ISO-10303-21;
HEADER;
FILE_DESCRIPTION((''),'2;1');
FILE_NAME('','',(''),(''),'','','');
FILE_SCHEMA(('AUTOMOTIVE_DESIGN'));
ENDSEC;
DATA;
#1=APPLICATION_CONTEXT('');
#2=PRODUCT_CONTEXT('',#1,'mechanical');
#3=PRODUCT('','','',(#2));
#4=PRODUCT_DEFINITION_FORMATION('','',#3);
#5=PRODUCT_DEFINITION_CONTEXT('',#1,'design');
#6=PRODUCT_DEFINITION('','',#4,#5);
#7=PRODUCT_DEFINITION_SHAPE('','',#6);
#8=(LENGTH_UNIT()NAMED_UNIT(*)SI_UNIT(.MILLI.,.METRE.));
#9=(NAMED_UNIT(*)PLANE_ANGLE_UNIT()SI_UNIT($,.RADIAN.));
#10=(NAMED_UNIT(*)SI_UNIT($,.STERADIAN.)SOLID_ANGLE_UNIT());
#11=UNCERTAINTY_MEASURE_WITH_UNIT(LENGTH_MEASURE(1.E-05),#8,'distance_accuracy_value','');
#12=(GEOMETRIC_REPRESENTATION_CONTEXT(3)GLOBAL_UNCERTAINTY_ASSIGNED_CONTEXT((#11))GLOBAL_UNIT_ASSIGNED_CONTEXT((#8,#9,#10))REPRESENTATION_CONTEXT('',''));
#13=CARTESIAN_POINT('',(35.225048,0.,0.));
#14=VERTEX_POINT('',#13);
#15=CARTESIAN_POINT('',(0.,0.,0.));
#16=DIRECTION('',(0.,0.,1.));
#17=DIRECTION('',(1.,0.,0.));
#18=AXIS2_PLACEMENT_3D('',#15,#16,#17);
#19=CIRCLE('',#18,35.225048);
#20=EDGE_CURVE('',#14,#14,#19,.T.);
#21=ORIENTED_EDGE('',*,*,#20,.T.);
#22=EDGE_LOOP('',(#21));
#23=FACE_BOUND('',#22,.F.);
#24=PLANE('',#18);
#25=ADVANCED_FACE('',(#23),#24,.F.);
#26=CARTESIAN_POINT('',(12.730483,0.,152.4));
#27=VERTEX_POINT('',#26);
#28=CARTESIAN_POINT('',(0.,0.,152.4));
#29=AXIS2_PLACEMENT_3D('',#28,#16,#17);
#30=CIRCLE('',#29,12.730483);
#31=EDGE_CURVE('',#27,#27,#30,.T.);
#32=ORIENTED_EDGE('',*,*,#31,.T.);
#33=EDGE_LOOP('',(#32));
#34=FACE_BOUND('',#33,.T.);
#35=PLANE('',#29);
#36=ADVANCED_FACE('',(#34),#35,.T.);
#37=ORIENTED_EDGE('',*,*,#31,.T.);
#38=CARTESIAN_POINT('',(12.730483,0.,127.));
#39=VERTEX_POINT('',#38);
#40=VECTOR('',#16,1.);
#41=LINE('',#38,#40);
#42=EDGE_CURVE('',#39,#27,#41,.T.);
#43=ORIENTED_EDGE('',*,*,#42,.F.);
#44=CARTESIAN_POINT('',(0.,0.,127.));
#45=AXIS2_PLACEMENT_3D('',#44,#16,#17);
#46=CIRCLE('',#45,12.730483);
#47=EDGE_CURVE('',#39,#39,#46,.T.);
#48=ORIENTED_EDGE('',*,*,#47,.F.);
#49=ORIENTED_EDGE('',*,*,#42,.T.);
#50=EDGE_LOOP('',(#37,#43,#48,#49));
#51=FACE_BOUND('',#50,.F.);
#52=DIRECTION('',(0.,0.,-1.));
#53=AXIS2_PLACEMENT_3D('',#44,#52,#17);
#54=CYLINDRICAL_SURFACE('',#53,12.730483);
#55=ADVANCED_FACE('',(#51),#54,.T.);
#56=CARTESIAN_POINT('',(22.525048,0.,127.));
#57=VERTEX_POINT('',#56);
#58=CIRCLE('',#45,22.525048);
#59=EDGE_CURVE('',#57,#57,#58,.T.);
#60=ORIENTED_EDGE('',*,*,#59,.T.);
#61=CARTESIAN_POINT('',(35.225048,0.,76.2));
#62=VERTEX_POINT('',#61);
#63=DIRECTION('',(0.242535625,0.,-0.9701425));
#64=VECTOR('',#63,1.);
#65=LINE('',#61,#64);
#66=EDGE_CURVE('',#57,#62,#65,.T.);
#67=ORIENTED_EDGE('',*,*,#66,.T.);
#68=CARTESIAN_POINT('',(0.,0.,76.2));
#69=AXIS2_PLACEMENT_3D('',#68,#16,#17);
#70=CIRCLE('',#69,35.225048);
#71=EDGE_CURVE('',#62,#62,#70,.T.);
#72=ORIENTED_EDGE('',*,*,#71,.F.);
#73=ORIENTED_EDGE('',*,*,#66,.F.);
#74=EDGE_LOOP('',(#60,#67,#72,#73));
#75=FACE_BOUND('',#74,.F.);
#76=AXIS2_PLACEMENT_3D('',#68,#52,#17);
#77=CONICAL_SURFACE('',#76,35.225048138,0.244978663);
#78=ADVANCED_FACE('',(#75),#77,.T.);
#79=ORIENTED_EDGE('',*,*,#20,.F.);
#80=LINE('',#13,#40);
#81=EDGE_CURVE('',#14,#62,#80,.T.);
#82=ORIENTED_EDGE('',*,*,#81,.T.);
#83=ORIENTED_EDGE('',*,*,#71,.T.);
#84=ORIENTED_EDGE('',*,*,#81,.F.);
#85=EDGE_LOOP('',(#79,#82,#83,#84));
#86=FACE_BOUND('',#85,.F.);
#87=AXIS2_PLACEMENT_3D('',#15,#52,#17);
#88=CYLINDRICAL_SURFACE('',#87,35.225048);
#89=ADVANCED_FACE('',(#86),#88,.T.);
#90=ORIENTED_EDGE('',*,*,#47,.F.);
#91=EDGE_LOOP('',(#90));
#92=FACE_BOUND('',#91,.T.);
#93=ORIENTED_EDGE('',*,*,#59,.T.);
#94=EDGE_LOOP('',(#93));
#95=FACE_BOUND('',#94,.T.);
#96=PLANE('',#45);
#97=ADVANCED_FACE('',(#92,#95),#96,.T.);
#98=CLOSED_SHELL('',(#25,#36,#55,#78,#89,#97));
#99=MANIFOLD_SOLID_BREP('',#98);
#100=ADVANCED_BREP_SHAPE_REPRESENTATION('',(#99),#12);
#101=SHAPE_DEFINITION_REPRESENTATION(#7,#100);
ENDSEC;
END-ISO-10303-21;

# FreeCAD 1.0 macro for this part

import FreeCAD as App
import Part
import Sketcher
Q = App.Units.Quantity


def edges_at(feature, points):
    """Names of the edges that pass closest to the given points."""
    edges = feature.Shape.Edges
    near = lambda p: min(range(len(edges)), key=lambda i: edges[i].distToShape(Part.Vertex(*p))[0])
    return sorted({f"Edge{near(p) + 1}" for p in points})

doc = App.newDocument("Part")
body = doc.addObject("PartDesign::Body", "Body")

# Sketch on XY plane
sketch1 = body.newObject("Sketcher::SketchObject", "Sketch")
sketch1.AttachmentSupport = (doc.getObject("XY_Plane"), [""])
sketch1.MapMode = "FlatFace"
sketch1.addGeometry(Part.Circle(App.Vector(0, 0, 0), App.Vector(0, 0, 1), 35.225048), False)
sketch1.addConstraint([
    Sketcher.Constraint("Coincident", 0, 3, -1, 1),
    Sketcher.Constraint("Diameter", 0, 70.450096),
])
pad1 = body.newObject("PartDesign::Pad", "Pad")
pad1.Profile = sketch1
pad1.Length = Q("5 in")
doc.recompute()

chamfer = body.newObject("PartDesign::Chamfer", "Chamfer")
chamfer.Base = (pad1, edges_at(pad1, [(-35.225, 0, 127)]))
chamfer.ChamferType = "Two distances"
chamfer.Size = Q("0.5 in")
chamfer.Size2 = Q("2 in")
chamfer.FlipDirection = True

# Sketch on XY plane
sketch2 = body.newObject("Sketcher::SketchObject", "Sketch001")
sketch2.AttachmentSupport = (doc.getObject("XY_Plane"), [""])
sketch2.MapMode = "FlatFace"
sketch2.AttachmentOffset = App.Placement(App.Vector(0, 0, 5 * 25.4), App.Rotation())
sketch2.addGeometry(Part.Circle(App.Vector(0, 0, 0), App.Vector(0, 0, 1), 12.730483), False)
sketch2.addConstraint([
    Sketcher.Constraint("Coincident", 0, 3, -1, 1),
    Sketcher.Constraint("Diameter", 0, 25.460967),
])
pad2 = body.newObject("PartDesign::Pad", "Pad001")
pad2.Profile = sketch2
pad2.Length = Q("1 in")

doc.recompute()
